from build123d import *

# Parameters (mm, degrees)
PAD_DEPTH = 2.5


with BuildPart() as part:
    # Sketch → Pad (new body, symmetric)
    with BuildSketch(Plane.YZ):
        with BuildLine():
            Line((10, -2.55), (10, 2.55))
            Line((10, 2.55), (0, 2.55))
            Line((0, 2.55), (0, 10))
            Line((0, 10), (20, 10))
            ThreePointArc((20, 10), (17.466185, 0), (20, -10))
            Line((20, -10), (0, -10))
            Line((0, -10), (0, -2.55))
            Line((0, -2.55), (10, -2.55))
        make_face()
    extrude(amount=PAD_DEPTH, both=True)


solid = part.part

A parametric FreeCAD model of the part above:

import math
import FreeCAD as App
import Part
import Sketcher

doc = App.newDocument("Part")
body = doc.addObject("PartDesign::Body", "Body")

# Sketch on YZ plane
sketch1 = body.newObject("Sketcher::SketchObject", "Sketch")
sketch1.AttachmentSupport = (doc.getObject("YZ_Plane"), [""])
sketch1.MapMode = "FlatFace"
sketch1.addGeometry([
    Part.LineSegment(App.Vector(10, 3, 0), App.Vector(10, -3, 0)),  # 0
    Part.LineSegment(App.Vector(10, -3, 0), App.Vector(0, -3, 0)),  # 1
    Part.LineSegment(App.Vector(0, -3, 0), App.Vector(0, -10, 0)),  # 2
    Part.LineSegment(App.Vector(0, -10, 0), App.Vector(20, -10, 0)),  # 3
    Part.ArcOfCircle(Part.Circle(App.Vector(38, 0, 0), App.Vector(0, 0, 1), 21), math.radians(152), math.radians(208)),  # 4
    Part.LineSegment(App.Vector(20, 10, 0), App.Vector(0, 10, 0)),  # 5
    Part.LineSegment(App.Vector(0, 10, 0), App.Vector(0, 3, 0)),  # 6
    Part.LineSegment(App.Vector(0, 3, 0), App.Vector(10, 3, 0)),  # 7
], False)
sketch1.addConstraint([
    Sketcher.Constraint("Coincident", 0, 2, 1, 1),
    Sketcher.Constraint("Coincident", 1, 2, 2, 1),
    Sketcher.Constraint("Coincident", 2, 2, 3, 1),
    Sketcher.Constraint("Coincident", 3, 2, 4, 2),
    Sketcher.Constraint("Coincident", 4, 1, 5, 1),
    Sketcher.Constraint("Coincident", 5, 2, 6, 1),
    Sketcher.Constraint("Coincident", 6, 2, 7, 1),
    Sketcher.Constraint("Coincident", 7, 2, 0, 1),
    Sketcher.Constraint("Vertical", 0),
    Sketcher.Constraint("Horizontal", 1),
    Sketcher.Constraint("Vertical", 2),
    Sketcher.Constraint("Horizontal", 3),
    Sketcher.Constraint("Horizontal", 5),
    Sketcher.Constraint("Vertical", 6),
    Sketcher.Constraint("Horizontal", 7),
    Sketcher.Constraint("Symmetric", 2, 2, 5, 2, -1, 1),
    Sketcher.Constraint("Symmetric", 1, 2, 6, 2, -1),
    Sketcher.Constraint("PointOnObject", 4, 3, -1),
    Sketcher.Constraint("DistanceX", 1, 2, 1, 1, 10.0),
    Sketcher.Constraint("DistanceX", 3, 1, 3, 2, 20.0),
    Sketcher.Constraint("DistanceY", 0, 2, 0, 1, 5.1),
    Sketcher.Constraint("DistanceY", 2, 2, -1, 1, 10.0),
    Sketcher.Constraint("Radius", 4, 20.999998),
])
pad1 = body.newObject("PartDesign::Pad", "Pad")
pad1.Profile = sketch1
pad1.Length = 5
pad1.Midplane = True

doc.recompute()
